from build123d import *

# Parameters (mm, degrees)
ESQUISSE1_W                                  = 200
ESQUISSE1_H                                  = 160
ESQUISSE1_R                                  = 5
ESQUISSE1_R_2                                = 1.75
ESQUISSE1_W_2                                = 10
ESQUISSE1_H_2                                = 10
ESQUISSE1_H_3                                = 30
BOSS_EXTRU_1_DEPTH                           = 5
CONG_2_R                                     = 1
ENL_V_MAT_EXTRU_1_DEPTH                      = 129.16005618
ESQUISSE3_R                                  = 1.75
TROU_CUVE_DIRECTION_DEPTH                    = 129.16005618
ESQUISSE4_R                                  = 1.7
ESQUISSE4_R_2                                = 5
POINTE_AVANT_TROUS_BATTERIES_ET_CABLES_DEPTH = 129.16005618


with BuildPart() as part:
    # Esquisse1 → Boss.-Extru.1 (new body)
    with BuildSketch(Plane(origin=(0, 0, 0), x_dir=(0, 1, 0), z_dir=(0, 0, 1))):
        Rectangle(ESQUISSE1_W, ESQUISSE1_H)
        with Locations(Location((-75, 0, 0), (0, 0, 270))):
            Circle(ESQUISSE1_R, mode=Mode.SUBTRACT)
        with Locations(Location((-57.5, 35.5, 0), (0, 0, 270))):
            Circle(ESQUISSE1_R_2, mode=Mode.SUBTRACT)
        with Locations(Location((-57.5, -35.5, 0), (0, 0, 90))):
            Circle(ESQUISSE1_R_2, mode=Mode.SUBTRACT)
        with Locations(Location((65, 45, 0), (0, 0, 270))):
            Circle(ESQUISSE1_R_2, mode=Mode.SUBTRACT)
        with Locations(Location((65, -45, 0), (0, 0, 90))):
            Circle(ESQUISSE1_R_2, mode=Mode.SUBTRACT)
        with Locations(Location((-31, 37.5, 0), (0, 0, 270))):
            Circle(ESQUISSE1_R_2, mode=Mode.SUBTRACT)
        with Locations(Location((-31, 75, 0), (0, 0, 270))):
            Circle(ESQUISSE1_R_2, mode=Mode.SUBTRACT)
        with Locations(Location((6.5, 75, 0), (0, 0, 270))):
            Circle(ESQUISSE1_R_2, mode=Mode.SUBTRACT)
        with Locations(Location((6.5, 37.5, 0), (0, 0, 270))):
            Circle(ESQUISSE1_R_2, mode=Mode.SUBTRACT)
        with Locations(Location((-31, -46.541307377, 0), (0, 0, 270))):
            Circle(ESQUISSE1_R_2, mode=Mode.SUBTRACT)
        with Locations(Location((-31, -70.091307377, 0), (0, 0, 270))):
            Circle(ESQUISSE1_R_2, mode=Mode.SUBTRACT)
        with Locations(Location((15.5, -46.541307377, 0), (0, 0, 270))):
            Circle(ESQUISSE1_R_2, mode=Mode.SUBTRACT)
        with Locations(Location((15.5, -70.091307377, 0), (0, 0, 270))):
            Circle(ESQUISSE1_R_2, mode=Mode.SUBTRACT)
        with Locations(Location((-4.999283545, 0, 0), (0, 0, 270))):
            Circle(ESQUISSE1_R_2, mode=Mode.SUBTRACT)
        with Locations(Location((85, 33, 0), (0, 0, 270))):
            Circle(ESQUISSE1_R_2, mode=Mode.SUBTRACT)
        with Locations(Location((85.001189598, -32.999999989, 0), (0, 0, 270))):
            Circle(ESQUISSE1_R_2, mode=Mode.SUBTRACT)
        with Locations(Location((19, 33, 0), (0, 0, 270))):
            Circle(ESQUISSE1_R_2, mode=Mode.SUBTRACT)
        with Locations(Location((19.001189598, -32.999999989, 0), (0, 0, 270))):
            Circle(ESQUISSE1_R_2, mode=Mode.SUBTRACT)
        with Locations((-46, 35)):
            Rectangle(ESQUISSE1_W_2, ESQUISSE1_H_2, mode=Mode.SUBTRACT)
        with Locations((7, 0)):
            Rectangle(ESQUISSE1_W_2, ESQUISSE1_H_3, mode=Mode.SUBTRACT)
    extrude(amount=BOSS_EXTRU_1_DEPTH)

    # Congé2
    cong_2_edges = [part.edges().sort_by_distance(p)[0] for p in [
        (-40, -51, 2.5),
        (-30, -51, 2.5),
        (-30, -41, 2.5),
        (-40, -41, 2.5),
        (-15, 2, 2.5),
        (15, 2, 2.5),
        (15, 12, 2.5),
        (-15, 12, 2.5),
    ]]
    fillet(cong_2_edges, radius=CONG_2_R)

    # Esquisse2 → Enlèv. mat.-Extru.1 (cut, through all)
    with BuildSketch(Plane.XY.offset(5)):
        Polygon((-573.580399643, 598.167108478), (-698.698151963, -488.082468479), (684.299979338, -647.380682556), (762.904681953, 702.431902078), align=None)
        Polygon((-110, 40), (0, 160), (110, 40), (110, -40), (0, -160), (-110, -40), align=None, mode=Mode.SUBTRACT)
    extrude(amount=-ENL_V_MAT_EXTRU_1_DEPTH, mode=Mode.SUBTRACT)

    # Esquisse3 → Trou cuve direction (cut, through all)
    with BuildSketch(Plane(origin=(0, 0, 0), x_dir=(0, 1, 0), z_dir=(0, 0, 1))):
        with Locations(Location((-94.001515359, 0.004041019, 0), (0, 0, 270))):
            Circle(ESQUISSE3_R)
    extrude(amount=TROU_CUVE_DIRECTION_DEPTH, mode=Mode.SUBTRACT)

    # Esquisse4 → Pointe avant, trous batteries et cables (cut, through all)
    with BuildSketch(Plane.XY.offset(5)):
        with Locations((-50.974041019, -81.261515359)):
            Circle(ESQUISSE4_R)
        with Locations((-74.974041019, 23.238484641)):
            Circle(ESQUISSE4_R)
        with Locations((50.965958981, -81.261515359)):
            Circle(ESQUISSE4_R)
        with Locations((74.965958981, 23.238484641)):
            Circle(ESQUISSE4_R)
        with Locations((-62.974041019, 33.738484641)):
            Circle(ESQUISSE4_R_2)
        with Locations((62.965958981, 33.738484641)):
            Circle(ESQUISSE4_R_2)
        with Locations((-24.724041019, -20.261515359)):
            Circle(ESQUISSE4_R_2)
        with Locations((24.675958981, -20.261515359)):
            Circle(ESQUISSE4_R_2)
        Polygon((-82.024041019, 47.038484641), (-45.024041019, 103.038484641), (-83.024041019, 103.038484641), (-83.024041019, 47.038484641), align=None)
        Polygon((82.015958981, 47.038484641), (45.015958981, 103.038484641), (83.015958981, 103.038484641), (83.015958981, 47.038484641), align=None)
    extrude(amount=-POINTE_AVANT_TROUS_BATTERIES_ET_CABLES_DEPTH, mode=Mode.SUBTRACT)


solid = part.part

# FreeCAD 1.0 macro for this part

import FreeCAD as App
import Part
import Sketcher
from FreeCAD import Vector
Q = App.Units.Quantity


def edges_at(feature, points):
    """Names of the edges that pass closest to the given points."""
    edges = feature.Shape.Edges
    near = lambda p: min(range(len(edges)), key=lambda i: edges[i].distToShape(Part.Vertex(*p))[0])
    return sorted({f"Edge{near(p) + 1}" for p in points})


def add_polygon(sketch, points):
    """Adds a closed chain of lines whose ends are joined by coincident constraints."""
    first, n = sketch.GeometryCount, len(points)
    for a, b in zip(points, points[1:] + points[:1]):
        sketch.addGeometry(Part.LineSegment(App.Vector(*a, 0), App.Vector(*b, 0)), False)
    for i in range(n):
        sketch.addConstraint(Sketcher.Constraint("Coincident", first + i, 2, first + (i + 1) % n, 1))

doc = App.newDocument("Part")
params = doc.addObject("Spreadsheet::Sheet", "Params")
for row, (alias, value) in enumerate([
    ("sketch1_diameter", "10 mm"),
    ("sketch1_diameter2", "3.5 mm"),
    ("sketch1_width", "160 mm"),
    ("sketch1_width2", "30 mm"),
    ("sketch1_width3", "10 mm"),
    ("pad1_length", "5 mm"),
    ("fillet_radius", "1 mm"),
    ("sketch2_height", "80 mm"),
    ("sketch3_diameter", "3.5 mm"),
    ("sketch4_diameter", "10 mm"),
    ("sketch4_diameter2", "3.4 mm"),
    ("sketch4_width", "38 mm"),
    ("sketch4_width2", "1 mm"),
    ("sketch4_height", "56 mm"),
], start=1):
    params.set(f"A{row}", alias)
    params.set(f"B{row}", "=" + value)
    params.setAlias(f"B{row}", alias)

body = doc.addObject("PartDesign::Body", "Body")

sketch1 = body.newObject("Sketcher::SketchObject", "Sketch")
sketch1.AttachmentSupport = (doc.getObject("XY_Plane"), [""])
sketch1.MapMode = "FlatFace"
add_polygon(sketch1, [(-80, -100), (80, -100), (80, 100), (-80, 100)])
sketch1.addGeometry(Part.Circle(Vector(35.5, -57.5, 0), Vector(0, 0, 1), 1.8), False)
sketch1.addGeometry(Part.Circle(Vector(70.1, -31, 0), Vector(0, 0, 1), 1.8), False)
sketch1.addGeometry(Part.Circle(Vector(46.5, -31, 0), Vector(0, 0, 1), 1.8), False)
sketch1.addGeometry(Part.Circle(Vector(0, -75, 0), Vector(0, 0, 1), 5), False)
sketch1.addGeometry(Part.Circle(Vector(0, -5, 0), Vector(0, 0, 1), 1.8), False)
sketch1.addGeometry(Part.Circle(Vector(70.1, 15.5, 0), Vector(0, 0, 1), 1.8), False)
sketch1.addGeometry(Part.Circle(Vector(46.5, 15.5, 0), Vector(0, 0, 1), 1.8), False)
sketch1.addGeometry(Part.Circle(Vector(45, 65, 0), Vector(0, 0, 1), 1.8), False)
sketch1.addGeometry(Part.Circle(Vector(33, 19, 0), Vector(0, 0, 1), 1.8), False)
add_polygon(sketch1, [(15, 12), (15, 2), (-15, 2), (-15, 12)])
sketch1.addGeometry(Part.Circle(Vector(33, 85, 0), Vector(0, 0, 1), 1.8), False)
sketch1.addGeometry(Part.Circle(Vector(-35.5, -57.5, 0), Vector(0, 0, 1), 1.8), False)
add_polygon(sketch1, [(-30, -41), (-30, -51), (-40, -51), (-40, -41)])
sketch1.addGeometry(Part.Circle(Vector(-37.5, -31, 0), Vector(0, 0, 1), 1.8), False)
sketch1.addGeometry(Part.Circle(Vector(-75, -31, 0), Vector(0, 0, 1), 1.8), False)
sketch1.addGeometry(Part.Circle(Vector(-37.5, 6.5, 0), Vector(0, 0, 1), 1.8), False)
sketch1.addGeometry(Part.Circle(Vector(-33, 19, 0), Vector(0, 0, 1), 1.8), False)
sketch1.addGeometry(Part.Circle(Vector(-33, 85, 0), Vector(0, 0, 1), 1.8), False)
sketch1.addGeometry(Part.Circle(Vector(-75, 6.5, 0), Vector(0, 0, 1), 1.8), False)
sketch1.addGeometry(Part.Circle(Vector(-45, 65, 0), Vector(0, 0, 1), 1.8), False)
sketch1.addConstraint([
    Sketcher.Constraint("Horizontal", 0),
    Sketcher.Constraint("Vertical", 1),
    Sketcher.Constraint("Horizontal", 2),
    Sketcher.Constraint("Vertical", 3),
    Sketcher.Constraint("Vertical", 13),
    Sketcher.Constraint("Horizontal", 14),
    Sketcher.Constraint("Vertical", 15),
    Sketcher.Constraint("Horizontal", 16),
    Sketcher.Constraint("Vertical", 19),
    Sketcher.Constraint("Horizontal", 20),
    Sketcher.Constraint("Vertical", 21),
    Sketcher.Constraint("Horizontal", 22),
    Sketcher.Constraint("Equal", 4, 5),
    Sketcher.Constraint("Equal", 5, 6),
    Sketcher.Constraint("Equal", 6, 8),
    Sketcher.Constraint("Equal", 8, 9),
    Sketcher.Constraint("Equal", 9, 10),
    Sketcher.Constraint("Equal", 10, 11),
    Sketcher.Constraint("Equal", 11, 12),
    Sketcher.Constraint("Equal", 12, 17),
    Sketcher.Constraint("Equal", 17, 18),
    Sketcher.Constraint("Equal", 18, 23),
    Sketcher.Constraint("Equal", 23, 24),
    Sketcher.Constraint("Equal", 24, 25),
    Sketcher.Constraint("Equal", 25, 26),
    Sketcher.Constraint("Equal", 26, 27),
    Sketcher.Constraint("Equal", 27, 28),
    Sketcher.Constraint("Equal", 28, 29),
    Sketcher.Constraint("Symmetric", 0, 2, 2, 2, -1, 1),
    Sketcher.Constraint("Symmetric", 4, 3, 18, 3, -2),
    Sketcher.Constraint("Symmetric", 11, 3, 29, 3, -2),
    Sketcher.Constraint("PointOnObject", 7, 3, -2),
    Sketcher.Constraint("PointOnObject", 8, 3, -2),
    Sketcher.Constraint("Horizontal", 5, 3, 6, 3),
    Sketcher.Constraint("Horizontal", 9, 3, 10, 3),
    Sketcher.Constraint("Horizontal", 6, 3, 23, 3),
    Sketcher.Constraint("Horizontal", 23, 3, 24, 3),
    Sketcher.Constraint("Horizontal", 25, 3, 28, 3),
    Sketcher.Constraint("Vertical", 5, 3, 9, 3),
    Sketcher.Constraint("Vertical", 6, 3, 10, 3),
    Sketcher.Constraint("Vertical", 12, 3, 17, 3),
    Sketcher.Constraint("Vertical", 23, 3, 25, 3),
    Sketcher.Constraint("Vertical", 26, 3, 27, 3),
    Sketcher.Constraint("Vertical", 24, 3, 28, 3),
    Sketcher.Constraint("Equal", 22, 13),
    Sketcher.Constraint("Equal", 15, 19),
    Sketcher.Constraint("Diameter", 7, Q("10 mm")),
    Sketcher.Constraint("Diameter", 4, Q("3.5 mm")),
    Sketcher.Constraint("DistanceX", 0, 1, 0, 2, Q("160 mm")),
    Sketcher.Constraint("DistanceX", 14, 2, 14, 1, Q("30 mm")),
    Sketcher.Constraint("DistanceX", 20, 2, 20, 1, Q("10 mm")),
    Sketcher.Constraint("DistanceY", 1, 1, 1, 2, Q("200 mm")),
    Sketcher.Constraint("DistanceY", 5, 3, -1, 1, Q("31 mm")),
    Sketcher.Constraint("DistanceY", 7, 3, -1, 1, Q("75 mm")),
    Sketcher.Constraint("DistanceX", -1, 1, 11, 3, Q("45 mm")),
    Sketcher.Constraint("DistanceY", -1, 1, 11, 3, Q("65 mm")),
    Sketcher.Constraint("DistanceX", -1, 1, 12, 3, Q("33 mm")),
    Sketcher.Constraint("DistanceX", 24, 3, -1, 1, Q("75 mm")),
    Sketcher.Constraint("DistanceX", 26, 3, -1, 1, Q("33 mm")),
    Sketcher.Constraint("DistanceY", -1, 1, 26, 3, Q("19 mm")),
    Sketcher.Constraint("DistanceY", -1, 1, 27, 3, Q("85 mm")),
    Sketcher.Constraint("DistanceX", -1, 1, 13, 2, Q("15 mm")),
    Sketcher.Constraint("DistanceY", -1, 1, 13, 2, Q("2 mm")),
    Sketcher.Constraint("DistanceX", 19, 2, -1, 1, Q("30 mm")),
    Sketcher.Constraint("DistanceY", 19, 2, -1, 1, Q("51 mm")),
    Sketcher.Constraint("DistanceY", 4, 3, 9, 3, Q("73 mm")),
    Sketcher.Constraint("DistanceY", 12, 3, 17, 3, Q("66 mm")),
    Sketcher.Constraint("DistanceX", 18, 3, 4, 3, Q("71 mm")),
    Sketcher.Constraint("DistanceX", 23, 3, 18, 3, Q("2 mm")),
    Sketcher.Constraint("DistanceY", 18, 3, 25, 3, Q("64 mm")),
    Sketcher.Constraint("DistanceY", 4, 3, -1, 1, Q("57.5 mm")),
    Sketcher.Constraint("DistanceX", 6, 3, 5, 3, Q("23.55 mm")),
    Sketcher.Constraint("DistanceY", -1, 1, 12, 3, Q("19.00119 mm")),
    Sketcher.Constraint("DistanceX", -1, 1, 5, 3, Q("70.091307 mm")),
    Sketcher.Constraint("DistanceY", 8, 3, -1, 1, Q("4.999284 mm")),
])
sketch1.setExpression("Constraints[58]", "Params.sketch1_diameter")
sketch1.setExpression("Constraints[59]", "Params.sketch1_diameter2")
sketch1.setExpression("Constraints[60]", "Params.sketch1_width")
sketch1.setExpression("Constraints[61]", "Params.sketch1_width2")
sketch1.setExpression("Constraints[62]", "Params.sketch1_width3")
pad1 = body.newObject("PartDesign::Pad", "Pad")
pad1.Profile = sketch1
pad1.setExpression("Length", "Params.pad1_length")
doc.recompute()

fillet = body.newObject("PartDesign::Fillet", "Fillet")
fillet.Base = (pad1, edges_at(pad1, [
    (-40, -51, 2.5),
    (-30, -51, 2.5),
    (-30, -41, 2.5),
    (-40, -41, 2.5),
    (-15, 2, 2.5),
    (15, 2, 2.5),
    (15, 12, 2.5),
    (-15, 12, 2.5),
]))
fillet.setExpression("Radius", "Params.fillet_radius")

sketch2 = body.newObject("Sketcher::SketchObject", "Sketch001")
sketch2.AttachmentSupport = (doc.getObject("XY_Plane"), [""])
sketch2.MapMode = "FlatFace"
sketch2.AttachmentOffset = App.Placement(Vector(0, 0, 5), App.Rotation())
add_polygon(sketch2, [(-574, 598), (-699, -488), (684, -647), (763, 702)])
add_polygon(sketch2, [(-110, -40), (-110, 40), (0, 160), (110, 40), (110, -40), (0, -160)])
sketch2.addConstraint([
    Sketcher.Constraint("Vertical", 4),
    Sketcher.Constraint("Vertical", 7),
    Sketcher.Constraint("Symmetric", 4, 2, 7, 2, -1, 1),
    Sketcher.Constraint("Symmetric", 5, 2, 8, 2, -1, 1),
    Sketcher.Constraint("PointOnObject", 5, 2, -2),
    Sketcher.Constraint("Perpendicular", 0, 1),
    Sketcher.Constraint("Parallel", 6, 9),
    Sketcher.Constraint("Horizontal", 4, 2, 6, 2),
    Sketcher.Constraint("DistanceY", 4, 1, 4, 2, Q("80 mm")),
    Sketcher.Constraint("DistanceX", 4, 2, -1, 1, Q("110 mm")),
    Sketcher.Constraint("DistanceY", -1, 1, 5, 2, Q("160 mm")),
    Sketcher.Constraint("DistanceX", 3, 2, -1, 1, Q("573.5804 mm")),
    Sketcher.Constraint("Distance", 0, Q("1093.431569 mm")),
    Sketcher.Constraint("Distance", 3, Q("1340.545979 mm")),
    Sketcher.Constraint("DistanceX", 0, 2, -1, 1, Q("698.698152 mm")),
    Sketcher.Constraint("DistanceY", 0, 2, -1, 1, Q("488.082468 mm")),
    Sketcher.Constraint("DistanceX", -1, 1, 1, 2, Q("684.299979 mm")),
    Sketcher.Constraint("DistanceX", -1, 1, 2, 2, Q("762.904682 mm")),
])
sketch2.setExpression("Constraints[18]", "Params.sketch2_height")
pocket1 = body.newObject("PartDesign::Pocket", "Pocket")
pocket1.Profile = sketch2
pocket1.Type = "ThroughAll"

sketch3 = body.newObject("Sketcher::SketchObject", "Sketch002")
sketch3.AttachmentSupport = (doc.getObject("XY_Plane"), [""])
sketch3.MapMode = "FlatFace"
sketch3.addGeometry(Part.Circle(Vector(0, -94, 0), Vector(0, 0, 1), 1.8), False)
sketch3.addConstraint([
    Sketcher.Constraint("Diameter", 0, Q("3.5 mm")),
    Sketcher.Constraint("DistanceX", 0, 3, -1, 1, Q("0.004041 mm")),
    Sketcher.Constraint("DistanceY", 0, 3, -1, 1, Q("94.001515 mm")),
])
sketch3.setExpression("Constraints[0]", "Params.sketch3_diameter")
pocket2 = body.newObject("PartDesign::Pocket", "Pocket001")
pocket2.Profile = sketch3
pocket2.Type = "ThroughAll"
pocket2.Reversed = True

sketch4 = body.newObject("Sketcher::SketchObject", "Sketch003")
sketch4.AttachmentSupport = (doc.getObject("XY_Plane"), [""])
sketch4.MapMode = "FlatFace"
sketch4.AttachmentOffset = App.Placement(Vector(0, 0, 5), App.Rotation())
sketch4.addGeometry(Part.Circle(Vector(-51, -81.3, 0), Vector(0, 0, 1), 1.7), False)
sketch4.addGeometry(Part.Circle(Vector(-75, 23.2, 0), Vector(0, 0, 1), 1.7), False)
sketch4.addGeometry(Part.Circle(Vector(51, -81.3, 0), Vector(0, 0, 1), 1.7), False)
sketch4.addGeometry(Part.Circle(Vector(75, 23.2, 0), Vector(0, 0, 1), 1.7), False)
sketch4.addGeometry(Part.Circle(Vector(-63, 33.7, 0), Vector(0, 0, 1), 5), False)
sketch4.addGeometry(Part.Circle(Vector(63, 33.7, 0), Vector(0, 0, 1), 5), False)
sketch4.addGeometry(Part.Circle(Vector(-24.7, -20.3, 0), Vector(0, 0, 1), 5), False)
sketch4.addGeometry(Part.Circle(Vector(24.7, -20.3, 0), Vector(0, 0, 1), 5), False)
add_polygon(sketch4, [(-82, 47), (-45, 103), (-83, 103), (-83, 47)])
add_polygon(sketch4, [(45, 103), (82, 47), (83, 47), (83, 103)])
sketch4.addConstraint([
    Sketcher.Constraint("Horizontal", 9),
    Sketcher.Constraint("Vertical", 10),
    Sketcher.Constraint("Horizontal", 11),
    Sketcher.Constraint("Horizontal", 13),
    Sketcher.Constraint("Vertical", 14),
    Sketcher.Constraint("Horizontal", 15),
    Sketcher.Constraint("Equal", 0, 1),
    Sketcher.Constraint("Equal", 1, 2),
    Sketcher.Constraint("Equal", 2, 3),
    Sketcher.Constraint("Equal", 4, 5),
    Sketcher.Constraint("Equal", 5, 6),
    Sketcher.Constraint("Equal", 6, 7),
    Sketcher.Constraint("Horizontal", 0, 3, 2, 3),
    Sketcher.Constraint("Horizontal", 1, 3, 3, 3),
    Sketcher.Constraint("Horizontal", 4, 3, 5, 3),
    Sketcher.Constraint("Horizontal", 6, 3, 7, 3),
    Sketcher.Constraint("Horizontal", 11, 2, 12, 2),
    Sketcher.Constraint("Horizontal", 9, 2, 14, 2),
    Sketcher.Constraint("Equal", 11, 13),
    Sketcher.Constraint("Equal", 9, 15),
    Sketcher.Constraint("Diameter", 4, Q("10 mm")),
    Sketcher.Constraint("Diameter", 0, Q("3.4 mm")),
    Sketcher.Constraint("DistanceX", 9, 2, 9, 1, Q("38 mm")),
    Sketcher.Constraint("DistanceX", 11, 1, 11, 2, Q("1 mm")),
    Sketcher.Constraint("DistanceY", 10, 2, 10, 1, Q("56 mm")),
    Sketcher.Constraint("DistanceX", 1, 3, 0, 3, Q("24 mm")),
    Sketcher.Constraint("DistanceX", 2, 3, 3, 3, Q("24 mm")),
    Sketcher.Constraint("DistanceX", 1, 3, 4, 3, Q("12 mm")),
    Sketcher.Constraint("DistanceY", 0, 3, 4, 3, Q("115 mm")),
    Sketcher.Constraint("DistanceX", 5, 3, 3, 3, Q("12 mm")),
    Sketcher.Constraint("DistanceY", 6, 3, 4, 3, Q("54 mm")),
    Sketcher.Constraint("DistanceY", 0, 3, 1, 3, Q("104.5 mm")),
    Sketcher.Constraint("DistanceX", 6, 3, 7, 3, Q("49.4 mm")),
    Sketcher.Constraint("DistanceY", 4, 3, 8, 2, Q("69.3 mm")),
    Sketcher.Constraint("DistanceX", 8, 2, 6, 3, Q("20.3 mm")),
    Sketcher.Constraint("DistanceX", 0, 3, 2, 3, Q("101.94 mm")),
    Sketcher.Constraint("DistanceX", 4, 3, 6, 3, Q("38.25 mm")),
    Sketcher.Constraint("DistanceX", 5, 3, 12, 2, Q("19.05 mm")),
    Sketcher.Constraint("DistanceX", 0, 3, -1, 1, Q("50.974041 mm")),
    Sketcher.Constraint("DistanceY", 0, 3, -1, 1, Q("81.261515 mm")),
])
sketch4.setExpression("Constraints[28]", "Params.sketch4_diameter")
sketch4.setExpression("Constraints[29]", "Params.sketch4_diameter2")
sketch4.setExpression("Constraints[30]", "Params.sketch4_width")
sketch4.setExpression("Constraints[31]", "Params.sketch4_width2")
sketch4.setExpression("Constraints[32]", "Params.sketch4_height")
pocket3 = body.newObject("PartDesign::Pocket", "Pocket002")
pocket3.Profile = sketch4
pocket3.Type = "ThroughAll"

doc.recompute()
